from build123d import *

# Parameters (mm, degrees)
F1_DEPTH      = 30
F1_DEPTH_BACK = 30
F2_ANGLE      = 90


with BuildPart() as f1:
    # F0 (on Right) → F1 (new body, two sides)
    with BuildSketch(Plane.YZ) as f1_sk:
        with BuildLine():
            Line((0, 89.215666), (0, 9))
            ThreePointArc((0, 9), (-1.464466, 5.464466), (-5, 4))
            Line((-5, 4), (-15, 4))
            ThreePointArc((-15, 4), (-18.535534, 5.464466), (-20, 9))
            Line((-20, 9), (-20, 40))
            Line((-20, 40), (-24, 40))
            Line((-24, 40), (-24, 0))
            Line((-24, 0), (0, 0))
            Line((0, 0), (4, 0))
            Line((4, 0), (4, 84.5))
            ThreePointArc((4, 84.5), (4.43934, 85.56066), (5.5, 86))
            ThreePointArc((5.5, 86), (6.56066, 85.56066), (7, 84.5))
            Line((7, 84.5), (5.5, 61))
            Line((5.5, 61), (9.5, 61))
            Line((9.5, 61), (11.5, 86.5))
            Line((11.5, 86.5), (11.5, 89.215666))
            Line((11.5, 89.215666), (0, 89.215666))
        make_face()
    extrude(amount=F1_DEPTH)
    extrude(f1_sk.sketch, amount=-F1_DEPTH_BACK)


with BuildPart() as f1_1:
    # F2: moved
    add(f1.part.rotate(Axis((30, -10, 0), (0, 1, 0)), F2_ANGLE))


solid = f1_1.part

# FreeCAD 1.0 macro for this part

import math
import FreeCAD as App
import Part
import Sketcher
from FreeCAD import Vector

doc = App.newDocument("Part")
body = doc.addObject("PartDesign::Body", "Body")

# Sketch on YZ plane
sketch1 = body.newObject("Sketcher::SketchObject", "Sketch")
sketch1.AttachmentSupport = (doc.getObject("YZ_Plane"), [""])
sketch1.MapMode = "FlatFace"
sketch1.addGeometry([
    Part.LineSegment(Vector(0, 89.215666, 0), Vector(0, 9, 0)),  # 0
    Part.ArcOfCircle(Part.Circle(Vector(-5, 9, 0), Vector(0, 0, 1), 5), math.radians(-90.000004), math.radians(0.000004)),  # 1
    Part.LineSegment(Vector(-5, 4, 0), Vector(-15, 4, 0)),  # 2
    Part.ArcOfCircle(Part.Circle(Vector(-15, 9, 0), Vector(0, 0, 1), 5), math.radians(179.999996), math.radians(270.000004)),  # 3
    Part.LineSegment(Vector(-20, 9, 0), Vector(-20, 40, 0)),  # 4
    Part.LineSegment(Vector(-20, 40, 0), Vector(-24, 40, 0)),  # 5
    Part.LineSegment(Vector(-24, 40, 0), Vector(-24, 0, 0)),  # 6
    Part.LineSegment(Vector(-24, 0, 0), Vector(4, 0, 0)),  # 7
    Part.LineSegment(Vector(4, 0, 0), Vector(4, 84.5, 0)),  # 8
    Part.ArcOfCircle(Part.Circle(Vector(5.500001, 84.499999, 0), Vector(0, 0, 1), 1.500001), math.radians(90.000022), math.radians(179.999978)),  # 9
    Part.ArcOfCircle(Part.Circle(Vector(5.499999, 84.499999, 0), Vector(0, 0, 1), 1.500001), math.radians(0.000022), math.radians(89.999978)),  # 10
    Part.LineSegment(Vector(7, 84.5, 0), Vector(5.5, 61, 0)),  # 11
    Part.LineSegment(Vector(5.5, 61, 0), Vector(9.5, 61, 0)),  # 12
    Part.LineSegment(Vector(9.5, 61, 0), Vector(11.5, 86.5, 0)),  # 13
    Part.LineSegment(Vector(11.5, 86.5, 0), Vector(11.5, 89.215666, 0)),  # 14
    Part.LineSegment(Vector(11.5, 89.215666, 0), Vector(0, 89.215666, 0)),  # 15
], False)
sketch1.addConstraint([
    Sketcher.Constraint("Tangent", 0, 2, 1, 2),
    Sketcher.Constraint("Tangent", 1, 1, 2, 1),
    Sketcher.Constraint("Tangent", 2, 2, 3, 2),
    Sketcher.Constraint("Tangent", 3, 1, 4, 1),
    Sketcher.Constraint("Coincident", 4, 2, 5, 1),
    Sketcher.Constraint("Coincident", 5, 2, 6, 1),
    Sketcher.Constraint("Coincident", 6, 2, 7, 1),
    Sketcher.Constraint("Coincident", 7, 2, 8, 1),
    Sketcher.Constraint("Tangent", 8, 2, 9, 2),
    Sketcher.Constraint("Tangent", 9, 1, 10, 2),
    Sketcher.Constraint("Coincident", 10, 1, 11, 1),
    Sketcher.Constraint("Coincident", 11, 2, 12, 1),
    Sketcher.Constraint("Coincident", 12, 2, 13, 1),
    Sketcher.Constraint("Coincident", 13, 2, 14, 1),
    Sketcher.Constraint("Coincident", 14, 2, 15, 1),
    Sketcher.Constraint("Coincident", 15, 2, 0, 1),
    Sketcher.Constraint("Vertical", 0),
    Sketcher.Constraint("Horizontal", 2),
    Sketcher.Constraint("Vertical", 4),
    Sketcher.Constraint("Horizontal", 5),
    Sketcher.Constraint("Vertical", 6),
    Sketcher.Constraint("Horizontal", 7),
    Sketcher.Constraint("Vertical", 8),
    Sketcher.Constraint("Horizontal", 12),
    Sketcher.Constraint("Vertical", 14),
    Sketcher.Constraint("Horizontal", 15),
    Sketcher.Constraint("Equal", 1, 3),
    Sketcher.Constraint("Equal", 9, 10),
    Sketcher.Constraint("PointOnObject", 0, 2, -2),
    Sketcher.Constraint("PointOnObject", 6, 2, -1),
    Sketcher.Constraint("Horizontal", 8, 2, 10, 1),
    Sketcher.Constraint("Vertical", 10, 3, 9, 1),
    Sketcher.Constraint("Vertical", 9, 1, 11, 2),
    Sketcher.Constraint("Equal", 5, 12),
    Sketcher.Constraint("Radius", 1, 5.0),
    Sketcher.Constraint("Radius", 9, 1.500001),
    Sketcher.Constraint("DistanceX", 2, 2, 2, 1, 10.0),
    Sketcher.Constraint("DistanceX", 5, 2, 5, 1, 4.0),
    Sketcher.Constraint("DistanceX", 7, 1, 7, 2, 28.0),
    Sketcher.Constraint("DistanceY", 4, 1, 4, 2, 31.0),
    Sketcher.Constraint("DistanceY", 6, 2, 6, 1, 40.0),
    Sketcher.Constraint("DistanceX", 15, 2, 15, 1, 11.5),
    Sketcher.Constraint("DistanceY", 8, 1, 8, 2, 84.5),
    Sketcher.Constraint("DistanceY", -1, 1, 11, 2, 61.0),
    Sketcher.Constraint("DistanceY", 10, 1, 13, 2, 2.0),
    Sketcher.Constraint("DistanceY", 0, 2, 0, 1, 80.215666),
])
pad1 = body.newObject("PartDesign::Pad", "Pad")
pad1.Profile = sketch1
pad1.Type = "TwoLengths"
pad1.Length = 30
pad1.Length2 = 30
body2 = doc.addObject("PartDesign::Body", "Body001")
doc.recompute()

body.Placement = App.Placement(Vector(30, 0, 30), App.Rotation(Vector(0, 1, 0), 90))
boolean = body2.newObject("PartDesign::Boolean", "Boolean")
boolean.Type = "Fuse"
boolean.addObjects([body])

doc.recompute()
